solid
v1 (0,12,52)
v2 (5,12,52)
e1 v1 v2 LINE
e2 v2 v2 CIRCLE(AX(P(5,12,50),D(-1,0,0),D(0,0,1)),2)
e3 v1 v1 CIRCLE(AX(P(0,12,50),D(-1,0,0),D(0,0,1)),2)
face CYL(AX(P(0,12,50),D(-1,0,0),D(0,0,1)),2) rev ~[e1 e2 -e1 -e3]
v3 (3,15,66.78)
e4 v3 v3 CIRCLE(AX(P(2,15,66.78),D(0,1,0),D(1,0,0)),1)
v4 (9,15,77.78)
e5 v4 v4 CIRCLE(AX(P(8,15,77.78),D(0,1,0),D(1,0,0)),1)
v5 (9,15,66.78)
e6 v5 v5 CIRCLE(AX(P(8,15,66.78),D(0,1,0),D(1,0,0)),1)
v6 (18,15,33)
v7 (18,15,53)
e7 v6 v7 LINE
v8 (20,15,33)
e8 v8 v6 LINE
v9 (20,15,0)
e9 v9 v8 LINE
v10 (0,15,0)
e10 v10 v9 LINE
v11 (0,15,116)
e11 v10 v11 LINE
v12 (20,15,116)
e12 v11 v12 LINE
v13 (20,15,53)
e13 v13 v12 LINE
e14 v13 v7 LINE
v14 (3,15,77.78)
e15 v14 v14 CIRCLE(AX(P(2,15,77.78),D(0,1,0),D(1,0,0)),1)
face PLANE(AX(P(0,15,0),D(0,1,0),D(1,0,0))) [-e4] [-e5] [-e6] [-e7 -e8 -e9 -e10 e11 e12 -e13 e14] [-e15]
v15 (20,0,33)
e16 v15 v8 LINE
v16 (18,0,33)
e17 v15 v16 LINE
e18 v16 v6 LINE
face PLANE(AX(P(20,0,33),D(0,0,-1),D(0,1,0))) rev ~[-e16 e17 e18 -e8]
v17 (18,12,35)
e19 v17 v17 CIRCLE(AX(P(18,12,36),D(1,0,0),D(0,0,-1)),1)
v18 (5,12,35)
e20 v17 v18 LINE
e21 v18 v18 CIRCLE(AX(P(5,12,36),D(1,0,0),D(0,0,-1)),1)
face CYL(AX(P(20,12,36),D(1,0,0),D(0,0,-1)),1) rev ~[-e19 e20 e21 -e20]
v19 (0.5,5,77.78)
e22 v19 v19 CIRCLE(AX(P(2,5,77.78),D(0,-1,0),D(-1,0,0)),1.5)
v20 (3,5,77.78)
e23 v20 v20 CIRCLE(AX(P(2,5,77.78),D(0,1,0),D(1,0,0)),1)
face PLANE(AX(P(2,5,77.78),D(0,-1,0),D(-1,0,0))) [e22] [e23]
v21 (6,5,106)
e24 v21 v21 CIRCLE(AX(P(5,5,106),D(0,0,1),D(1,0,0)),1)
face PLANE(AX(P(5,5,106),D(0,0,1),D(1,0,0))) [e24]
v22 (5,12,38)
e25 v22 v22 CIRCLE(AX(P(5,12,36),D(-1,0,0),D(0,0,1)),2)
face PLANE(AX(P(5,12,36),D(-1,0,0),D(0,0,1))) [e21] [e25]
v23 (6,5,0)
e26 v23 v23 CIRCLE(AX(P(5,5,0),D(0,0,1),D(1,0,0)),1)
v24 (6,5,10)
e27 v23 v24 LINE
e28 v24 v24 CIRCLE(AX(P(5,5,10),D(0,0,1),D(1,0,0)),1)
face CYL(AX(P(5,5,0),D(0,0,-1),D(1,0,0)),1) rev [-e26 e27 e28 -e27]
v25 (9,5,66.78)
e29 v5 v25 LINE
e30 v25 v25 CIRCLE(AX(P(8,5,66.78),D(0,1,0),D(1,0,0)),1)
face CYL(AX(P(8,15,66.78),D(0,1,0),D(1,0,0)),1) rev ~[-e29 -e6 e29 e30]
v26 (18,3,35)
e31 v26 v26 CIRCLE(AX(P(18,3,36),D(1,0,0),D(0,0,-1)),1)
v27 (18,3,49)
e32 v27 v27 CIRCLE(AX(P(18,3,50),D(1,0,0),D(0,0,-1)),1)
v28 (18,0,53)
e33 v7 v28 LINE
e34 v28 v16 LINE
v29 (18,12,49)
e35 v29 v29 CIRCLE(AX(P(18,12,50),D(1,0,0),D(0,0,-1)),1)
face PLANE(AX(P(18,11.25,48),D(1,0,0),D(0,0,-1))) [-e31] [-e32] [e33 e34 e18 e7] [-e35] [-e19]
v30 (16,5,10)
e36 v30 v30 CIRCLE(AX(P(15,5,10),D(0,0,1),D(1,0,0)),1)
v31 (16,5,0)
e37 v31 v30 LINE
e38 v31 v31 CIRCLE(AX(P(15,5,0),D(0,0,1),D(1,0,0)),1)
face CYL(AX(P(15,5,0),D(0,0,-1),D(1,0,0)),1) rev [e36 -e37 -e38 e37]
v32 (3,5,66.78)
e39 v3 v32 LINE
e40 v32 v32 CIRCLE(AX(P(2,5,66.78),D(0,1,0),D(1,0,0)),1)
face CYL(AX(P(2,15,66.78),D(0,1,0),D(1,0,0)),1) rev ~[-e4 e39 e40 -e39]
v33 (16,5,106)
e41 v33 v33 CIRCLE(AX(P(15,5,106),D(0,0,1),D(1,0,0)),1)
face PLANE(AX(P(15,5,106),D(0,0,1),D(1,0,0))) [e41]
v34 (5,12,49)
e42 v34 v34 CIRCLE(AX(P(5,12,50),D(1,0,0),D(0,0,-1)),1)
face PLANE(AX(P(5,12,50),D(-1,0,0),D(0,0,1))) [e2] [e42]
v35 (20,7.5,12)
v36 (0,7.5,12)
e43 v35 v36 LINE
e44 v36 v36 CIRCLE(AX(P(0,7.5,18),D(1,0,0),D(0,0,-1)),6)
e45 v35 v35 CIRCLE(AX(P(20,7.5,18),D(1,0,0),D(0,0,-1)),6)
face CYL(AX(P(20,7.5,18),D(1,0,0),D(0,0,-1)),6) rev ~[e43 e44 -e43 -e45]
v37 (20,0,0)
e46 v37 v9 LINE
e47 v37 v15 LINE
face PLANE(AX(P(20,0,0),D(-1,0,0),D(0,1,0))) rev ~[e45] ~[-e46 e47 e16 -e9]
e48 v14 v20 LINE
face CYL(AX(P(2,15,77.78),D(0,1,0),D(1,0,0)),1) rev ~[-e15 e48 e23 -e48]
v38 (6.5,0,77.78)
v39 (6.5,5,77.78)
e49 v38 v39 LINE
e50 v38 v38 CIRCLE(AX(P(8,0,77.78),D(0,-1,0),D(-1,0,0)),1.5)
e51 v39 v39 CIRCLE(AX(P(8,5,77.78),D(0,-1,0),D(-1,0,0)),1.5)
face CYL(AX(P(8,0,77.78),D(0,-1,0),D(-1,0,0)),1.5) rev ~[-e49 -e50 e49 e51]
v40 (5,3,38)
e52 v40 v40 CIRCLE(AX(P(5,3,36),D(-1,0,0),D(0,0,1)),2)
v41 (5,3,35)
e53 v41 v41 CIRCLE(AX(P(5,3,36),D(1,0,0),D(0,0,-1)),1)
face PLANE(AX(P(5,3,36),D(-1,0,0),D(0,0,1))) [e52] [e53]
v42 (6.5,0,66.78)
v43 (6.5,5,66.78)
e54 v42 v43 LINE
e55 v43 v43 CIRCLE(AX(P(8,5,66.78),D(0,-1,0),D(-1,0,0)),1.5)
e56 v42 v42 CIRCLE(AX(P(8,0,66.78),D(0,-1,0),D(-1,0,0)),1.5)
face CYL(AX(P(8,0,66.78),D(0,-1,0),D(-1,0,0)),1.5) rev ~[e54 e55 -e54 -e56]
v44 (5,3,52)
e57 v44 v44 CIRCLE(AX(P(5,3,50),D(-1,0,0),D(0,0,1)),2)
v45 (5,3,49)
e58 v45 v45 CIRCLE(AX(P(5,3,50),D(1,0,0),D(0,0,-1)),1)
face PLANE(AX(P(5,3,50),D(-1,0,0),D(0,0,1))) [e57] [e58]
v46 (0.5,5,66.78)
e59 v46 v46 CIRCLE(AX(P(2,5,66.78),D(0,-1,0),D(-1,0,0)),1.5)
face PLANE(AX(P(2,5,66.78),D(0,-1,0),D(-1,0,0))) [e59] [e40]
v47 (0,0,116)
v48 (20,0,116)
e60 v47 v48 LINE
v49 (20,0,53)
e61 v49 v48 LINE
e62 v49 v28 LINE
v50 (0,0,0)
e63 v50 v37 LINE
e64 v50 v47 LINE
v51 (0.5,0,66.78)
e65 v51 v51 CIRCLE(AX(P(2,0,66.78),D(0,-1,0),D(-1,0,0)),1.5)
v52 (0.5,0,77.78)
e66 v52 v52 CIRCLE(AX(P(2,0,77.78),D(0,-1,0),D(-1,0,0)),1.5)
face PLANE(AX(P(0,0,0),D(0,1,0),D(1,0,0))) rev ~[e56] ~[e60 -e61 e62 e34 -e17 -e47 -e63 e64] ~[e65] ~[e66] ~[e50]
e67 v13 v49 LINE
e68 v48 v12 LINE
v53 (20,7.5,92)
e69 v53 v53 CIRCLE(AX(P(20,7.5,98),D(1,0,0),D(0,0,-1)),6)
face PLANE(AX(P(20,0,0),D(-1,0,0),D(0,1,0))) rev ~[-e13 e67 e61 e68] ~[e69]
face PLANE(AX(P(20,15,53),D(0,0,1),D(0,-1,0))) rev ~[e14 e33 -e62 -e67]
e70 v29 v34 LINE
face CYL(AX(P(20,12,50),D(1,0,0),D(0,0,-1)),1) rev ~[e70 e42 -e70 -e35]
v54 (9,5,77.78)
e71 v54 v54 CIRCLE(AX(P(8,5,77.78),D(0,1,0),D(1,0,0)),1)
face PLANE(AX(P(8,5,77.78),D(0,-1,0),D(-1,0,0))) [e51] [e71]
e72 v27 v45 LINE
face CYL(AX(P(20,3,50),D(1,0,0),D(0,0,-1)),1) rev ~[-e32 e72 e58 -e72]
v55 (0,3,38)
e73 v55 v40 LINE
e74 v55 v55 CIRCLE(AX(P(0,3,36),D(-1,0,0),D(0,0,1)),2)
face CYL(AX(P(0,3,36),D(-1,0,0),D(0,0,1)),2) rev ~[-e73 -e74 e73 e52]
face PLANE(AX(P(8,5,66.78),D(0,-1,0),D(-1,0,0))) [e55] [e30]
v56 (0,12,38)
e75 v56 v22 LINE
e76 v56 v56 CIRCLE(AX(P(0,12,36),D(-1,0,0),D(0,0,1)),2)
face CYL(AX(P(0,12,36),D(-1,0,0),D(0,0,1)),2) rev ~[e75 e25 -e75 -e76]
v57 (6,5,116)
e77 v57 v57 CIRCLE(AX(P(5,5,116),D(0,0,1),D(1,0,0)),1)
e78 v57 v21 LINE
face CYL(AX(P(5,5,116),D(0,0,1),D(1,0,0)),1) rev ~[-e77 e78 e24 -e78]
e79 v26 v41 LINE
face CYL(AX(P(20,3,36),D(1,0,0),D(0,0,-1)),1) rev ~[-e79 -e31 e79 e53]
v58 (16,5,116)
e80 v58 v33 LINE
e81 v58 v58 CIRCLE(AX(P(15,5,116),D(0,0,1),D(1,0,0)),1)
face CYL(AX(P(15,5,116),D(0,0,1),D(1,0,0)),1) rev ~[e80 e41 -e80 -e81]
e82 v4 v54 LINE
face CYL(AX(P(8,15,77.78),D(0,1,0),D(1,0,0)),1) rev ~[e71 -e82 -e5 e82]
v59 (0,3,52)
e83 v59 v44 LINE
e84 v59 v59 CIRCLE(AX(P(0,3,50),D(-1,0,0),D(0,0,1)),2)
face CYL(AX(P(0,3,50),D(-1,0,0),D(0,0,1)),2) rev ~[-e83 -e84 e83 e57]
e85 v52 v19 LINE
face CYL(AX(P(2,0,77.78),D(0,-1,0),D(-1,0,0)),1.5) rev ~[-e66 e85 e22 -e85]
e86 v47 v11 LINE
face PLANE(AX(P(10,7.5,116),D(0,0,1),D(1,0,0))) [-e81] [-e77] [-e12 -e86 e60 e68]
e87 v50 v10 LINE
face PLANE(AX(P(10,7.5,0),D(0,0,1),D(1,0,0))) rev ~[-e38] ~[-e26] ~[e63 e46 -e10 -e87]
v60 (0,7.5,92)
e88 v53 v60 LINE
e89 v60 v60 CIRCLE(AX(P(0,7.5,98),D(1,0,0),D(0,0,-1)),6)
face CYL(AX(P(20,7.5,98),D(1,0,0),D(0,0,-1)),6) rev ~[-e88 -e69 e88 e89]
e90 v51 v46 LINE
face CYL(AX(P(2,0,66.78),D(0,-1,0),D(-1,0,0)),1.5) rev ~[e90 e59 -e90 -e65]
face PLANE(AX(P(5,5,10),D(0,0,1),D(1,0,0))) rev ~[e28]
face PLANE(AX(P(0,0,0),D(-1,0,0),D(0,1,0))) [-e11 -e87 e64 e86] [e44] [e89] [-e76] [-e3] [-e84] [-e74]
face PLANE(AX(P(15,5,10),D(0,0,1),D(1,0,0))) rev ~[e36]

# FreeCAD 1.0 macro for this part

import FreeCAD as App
import Part
import Sketcher

V = App.Vector

doc = App.newDocument("Part")
params = doc.addObject("Spreadsheet::Sheet", "Params")
for row, (alias, value) in enumerate([
    ("sketch1_width", "20 mm"),
    ("sketch1_height", "15 mm"),
    ("pad1_length", "116 mm"),
    ("sketch2_diameter", "2 mm"),
    ("pocket1_length", "10 mm"),
    ("sketch3_diameter", "2 mm"),
    ("pocket2_length", "10 mm"),
    ("sketch4_diameter", "5 mm"),
    ("sketch5_diameter", "12 mm"),
    ("sketch6_diameter", "2 mm"),
    ("sketch7_diameter", "3 mm"),
    ("pocket6_length", "5 mm"),
    ("sketch8_diameter", "2 mm"),
    ("sketch9_diameter", "4 mm"),
    ("pocket8_length", "5 mm"),
    ("sketch10_diameter", "2 mm"),
    ("sketch10_width", "15 mm"),
    ("sketch10_height", "20 mm"),
    ("pocket9_length", "2 mm"),
], start=1):
    params.set(f"A{row}", alias)
    params.set(f"B{row}", "=" + value)
    params.setAlias(f"B{row}", alias)

body = doc.addObject("PartDesign::Body", "Body")

sketch1 = body.newObject("Sketcher::SketchObject", "Sketch")
sketch1.AttachmentSupport = (doc.getObject("XY_Plane"), [""])
sketch1.MapMode = "FlatFace"
sketch1.addGeometry([
    Part.LineSegment(V(0, 15, 0), V(0, 0, 0)),
    Part.LineSegment(V(0, 0, 0), V(20, 0, 0)),
    Part.LineSegment(V(20, 0, 0), V(20, 15, 0)),
    Part.LineSegment(V(20, 15, 0), V(0, 15, 0)),
], False)
sketch1.addConstraint([
    Sketcher.Constraint("Coincident", 0, 2, 1, 1),
    Sketcher.Constraint("Coincident", 1, 2, 2, 1),
    Sketcher.Constraint("Coincident", 2, 2, 3, 1),
    Sketcher.Constraint("Coincident", 3, 2, 0, 1),
    Sketcher.Constraint("Vertical", 0),
    Sketcher.Constraint("Horizontal", 1),
    Sketcher.Constraint("Vertical", 2),
    Sketcher.Constraint("Horizontal", 3),
    Sketcher.Constraint("Coincident", 0, 2, -1, 1),
    Sketcher.Constraint("DistanceX", 1, 1, 1, 2, 20.0),
    Sketcher.Constraint("DistanceY", 0, 2, 0, 1, 15.0),
])
sketch1.setExpression("Constraints[9]", "Params.sketch1_width")
sketch1.setExpression("Constraints[10]", "Params.sketch1_height")
pad1 = body.newObject("PartDesign::Pad", "Pad")
pad1.Profile = sketch1
pad1.setExpression("Length", "Params.pad1_length")

sketch2 = body.newObject("Sketcher::SketchObject", "Sketch001")
sketch2.AttachmentSupport = (doc.getObject("XY_Plane"), [""])
sketch2.MapMode = "FlatFace"
sketch2.addGeometry([
    Part.Circle(V(15, 5, 0), V(0, 0, 1), 1),
    Part.Circle(V(5, 5, 0), V(0, 0, 1), 1),
], False)
sketch2.addConstraint([
    Sketcher.Constraint("Equal", 0, 1),
    Sketcher.Constraint("Horizontal", 0, 3, 1, 3),
    Sketcher.Constraint("Diameter", 0, 2.0),
    Sketcher.Constraint("DistanceX", -1, 1, 0, 3, 15.0),
    Sketcher.Constraint("DistanceY", -1, 1, 0, 3, 5.0),
    Sketcher.Constraint("DistanceX", -1, 1, 1, 3, 5.0),
])
sketch2.setExpression("Constraints[2]", "Params.sketch2_diameter")
pocket1 = body.newObject("PartDesign::Pocket", "Pocket")
pocket1.Profile = sketch2
pocket1.setExpression("Length", "Params.pocket1_length")
pocket1.Reversed = True

sketch3 = body.newObject("Sketcher::SketchObject", "Sketch002")
sketch3.AttachmentSupport = (doc.getObject("XY_Plane"), [""])
sketch3.MapMode = "FlatFace"
sketch3.AttachmentOffset = App.Placement(V(0, 0, 116), App.Rotation())
sketch3.addGeometry([
    Part.Circle(V(5, 5, 0), V(0, 0, 1), 1),
    Part.Circle(V(15, 5, 0), V(0, 0, 1), 1),
], False)
sketch3.addConstraint([
    Sketcher.Constraint("Equal", 0, 1),
    Sketcher.Constraint("Horizontal", 0, 3, 1, 3),
    Sketcher.Constraint("Diameter", 0, 2.0),
    Sketcher.Constraint("DistanceX", -1, 1, 0, 3, 5.0),
    Sketcher.Constraint("DistanceY", -1, 1, 0, 3, 5.0),
    Sketcher.Constraint("DistanceX", -1, 1, 1, 3, 15.0),
])
sketch3.setExpression("Constraints[2]", "Params.sketch3_diameter")
pocket2 = body.newObject("PartDesign::Pocket", "Pocket001")
pocket2.Profile = sketch3
pocket2.setExpression("Length", "Params.pocket2_length")

sketch4 = body.newObject("Sketcher::SketchObject", "Sketch003")
sketch4.AttachmentSupport = (doc.getObject("YZ_Plane"), [""])
sketch4.MapMode = "FlatFace"
sketch4.AttachmentOffset = App.Placement(V(0, 0, 20), App.Rotation())
sketch4.addGeometry([
    Part.Circle(V(7.5, 98, 0), V(0, 0, 1), 2.5),
    Part.Circle(V(7.5, 18, 0), V(0, 0, 1), 2.5),
], False)
sketch4.addConstraint([
    Sketcher.Constraint("Equal", 0, 1),
    Sketcher.Constraint("Vertical", 0, 3, 1, 3),
    Sketcher.Constraint("Diameter", 0, 5.0),
    Sketcher.Constraint("DistanceY", -1, 1, 0, 3, 98.0),
    Sketcher.Constraint("DistanceY", -1, 1, 1, 3, 18.0),
    Sketcher.Constraint("DistanceX", -1, 1, 0, 3, 7.5),
])
sketch4.setExpression("Constraints[2]", "Params.sketch4_diameter")
pocket3 = body.newObject("PartDesign::Pocket", "Pocket002")
pocket3.Profile = sketch4
pocket3.Type = "ThroughAll"

sketch5 = body.newObject("Sketcher::SketchObject", "Sketch004")
sketch5.AttachmentSupport = (doc.getObject("YZ_Plane"), [""])
sketch5.MapMode = "FlatFace"
sketch5.AttachmentOffset = App.Placement(V(0, 0, 20), App.Rotation())
sketch5.addGeometry([
    Part.Circle(V(8, 98, 0), V(0, 0, 1), 6),
    Part.Circle(V(8, 18, 0), V(0, 0, 1), 6),
], False)
sketch5.addConstraint([
    Sketcher.Constraint("Equal", 0, 1),
    Sketcher.Constraint("Vertical", 0, 3, 1, 3),
    Sketcher.Constraint("Diameter", 0, 12.0),
    Sketcher.Constraint("DistanceY", -1, 1, 0, 3, 98.0),
    Sketcher.Constraint("DistanceY", -1, 1, 1, 3, 18.0),
    Sketcher.Constraint("DistanceX", -1, 1, 0, 3, 7.5),
])
sketch5.setExpression("Constraints[2]", "Params.sketch5_diameter")
pocket4 = body.newObject("PartDesign::Pocket", "Pocket003")
pocket4.Profile = sketch5
pocket4.Type = "ThroughAll"

sketch6 = body.newObject("Sketcher::SketchObject", "Sketch005")
sketch6.AttachmentSupport = (doc.getObject("XZ_Plane"), [""])
sketch6.MapMode = "FlatFace"
sketch6.AttachmentOffset = App.Placement(V(0, 0, -15), App.Rotation())
sketch6.addGeometry([
    Part.Circle(V(8, 77.8, 0), V(0, 0, 1), 1),
    Part.Circle(V(2, 66.8, 0), V(0, 0, 1), 1),
    Part.Circle(V(8, 66.8, 0), V(0, 0, 1), 1),
    Part.Circle(V(2, 77.8, 0), V(0, 0, 1), 1),
], False)
sketch6.addConstraint([
    Sketcher.Constraint("Equal", 0, 1),
    Sketcher.Constraint("Equal", 1, 2),
    Sketcher.Constraint("Equal", 2, 3),
    Sketcher.Constraint("Horizontal", 1, 3, 2, 3),
    Sketcher.Constraint("Horizontal", 0, 3, 3, 3),
    Sketcher.Constraint("Vertical", 0, 3, 2, 3),
    Sketcher.Constraint("Vertical", 1, 3, 3, 3),
    Sketcher.Constraint("Diameter", 0, 2.0),
    Sketcher.Constraint("DistanceX", -1, 1, 0, 3, 8.0),
    Sketcher.Constraint("DistanceX", -1, 1, 1, 3, 2.0),
    Sketcher.Constraint("DistanceY", 1, 3, 0, 3, 11.0),
    Sketcher.Constraint("DistanceY", -1, 1, 0, 3, 77.78),
])
sketch6.setExpression("Constraints[7]", "Params.sketch6_diameter")
pocket5 = body.newObject("PartDesign::Pocket", "Pocket004")
pocket5.Profile = sketch6
pocket5.Type = "ThroughAll"
pocket5.Reversed = True

sketch7 = body.newObject("Sketcher::SketchObject", "Sketch006")
sketch7.AttachmentSupport = (doc.getObject("XZ_Plane"), [""])
sketch7.MapMode = "FlatFace"
sketch7.addGeometry([
    Part.Circle(V(2, 77.8, 0), V(0, 0, 1), 1.5),
    Part.Circle(V(8, 77.8, 0), V(0, 0, 1), 1.5),
    Part.Circle(V(8, 66.8, 0), V(0, 0, 1), 1.5),
    Part.Circle(V(2, 66.8, 0), V(0, 0, 1), 1.5),
], False)
sketch7.addConstraint([
    Sketcher.Constraint("Equal", 0, 1),
    Sketcher.Constraint("Equal", 1, 2),
    Sketcher.Constraint("Equal", 2, 3),
    Sketcher.Constraint("Horizontal", 0, 3, 1, 3),
    Sketcher.Constraint("Horizontal", 2, 3, 3, 3),
    Sketcher.Constraint("Vertical", 1, 3, 2, 3),
    Sketcher.Constraint("Vertical", 0, 3, 3, 3),
    Sketcher.Constraint("Diameter", 0, 3.0),
    Sketcher.Constraint("DistanceX", -1, 1, 0, 3, 2.0),
    Sketcher.Constraint("DistanceX", -1, 1, 1, 3, 8.0),
    Sketcher.Constraint("DistanceY", 2, 3, 1, 3, 11.0),
    Sketcher.Constraint("DistanceY", -1, 1, 0, 3, 77.78),
])
sketch7.setExpression("Constraints[7]", "Params.sketch7_diameter")
pocket6 = body.newObject("PartDesign::Pocket", "Pocket005")
pocket6.Profile = sketch7
pocket6.setExpression("Length", "Params.pocket6_length")

sketch8 = body.newObject("Sketcher::SketchObject", "Sketch007")
sketch8.AttachmentSupport = (doc.getObject("YZ_Plane"), [""])
sketch8.MapMode = "FlatFace"
sketch8.AttachmentOffset = App.Placement(V(0, 0, 20), App.Rotation())
sketch8.addGeometry([
    Part.Circle(V(12, 50, 0), V(0, 0, 1), 1),
    Part.Circle(V(12, 36, 0), V(0, 0, 1), 1),
    Part.Circle(V(3, 36, 0), V(0, 0, 1), 1),
    Part.Circle(V(3, 50, 0), V(0, 0, 1), 1),
], False)
sketch8.addConstraint([
    Sketcher.Constraint("Equal", 0, 1),
    Sketcher.Constraint("Equal", 1, 2),
    Sketcher.Constraint("Equal", 2, 3),
    Sketcher.Constraint("Horizontal", 1, 3, 2, 3),
    Sketcher.Constraint("Horizontal", 0, 3, 3, 3),
    Sketcher.Constraint("Vertical", 0, 3, 1, 3),
    Sketcher.Constraint("Vertical", 2, 3, 3, 3),
    Sketcher.Constraint("Diameter", 0, 2.0),
    Sketcher.Constraint("DistanceX", -1, 1, 0, 3, 12.0),
    Sketcher.Constraint("DistanceY", -1, 1, 0, 3, 50.0),
    Sketcher.Constraint("DistanceY", -1, 1, 1, 3, 36.0),
    Sketcher.Constraint("DistanceX", -1, 1, 2, 3, 3.0),
])
sketch8.setExpression("Constraints[7]", "Params.sketch8_diameter")
pocket7 = body.newObject("PartDesign::Pocket", "Pocket006")
pocket7.Profile = sketch8
pocket7.Type = "ThroughAll"

sketch9 = body.newObject("Sketcher::SketchObject", "Sketch008")
sketch9.AttachmentSupport = (doc.getObject("YZ_Plane"), [""])
sketch9.MapMode = "FlatFace"
sketch9.addGeometry([
    Part.Circle(V(12, 36, 0), V(0, 0, 1), 2),
    Part.Circle(V(3, 36, 0), V(0, 0, 1), 2),
    Part.Circle(V(3, 50, 0), V(0, 0, 1), 2),
    Part.Circle(V(12, 50, 0), V(0, 0, 1), 2),
], False)
sketch9.addConstraint([
    Sketcher.Constraint("Equal", 0, 1),
    Sketcher.Constraint("Equal", 1, 2),
    Sketcher.Constraint("Equal", 2, 3),
    Sketcher.Constraint("Horizontal", 0, 3, 1, 3),
    Sketcher.Constraint("Horizontal", 2, 3, 3, 3),
    Sketcher.Constraint("Vertical", 1, 3, 2, 3),
    Sketcher.Constraint("Vertical", 0, 3, 3, 3),
    Sketcher.Constraint("Diameter", 0, 4.0),
    Sketcher.Constraint("DistanceX", -1, 1, 0, 3, 12.0),
    Sketcher.Constraint("DistanceY", -1, 1, 0, 3, 36.0),
    Sketcher.Constraint("DistanceX", -1, 1, 1, 3, 3.0),
    Sketcher.Constraint("DistanceY", -1, 1, 2, 3, 50.0),
])
sketch9.setExpression("Constraints[7]", "Params.sketch9_diameter")
pocket8 = body.newObject("PartDesign::Pocket", "Pocket007")
pocket8.Profile = sketch9
pocket8.setExpression("Length", "Params.pocket8_length")
pocket8.Reversed = True

sketch10 = body.newObject("Sketcher::SketchObject", "Sketch009")
sketch10.AttachmentSupport = (doc.getObject("YZ_Plane"), [""])
sketch10.MapMode = "FlatFace"
sketch10.AttachmentOffset = App.Placement(V(0, 0, 20), App.Rotation())
sketch10.addGeometry([
    Part.LineSegment(V(15, 53, 0), V(0, 53, 0)),
    Part.LineSegment(V(0, 53, 0), V(0, 33, 0)),
    Part.LineSegment(V(0, 33, 0), V(15, 33, 0)),
    Part.LineSegment(V(15, 33, 0), V(15, 53, 0)),
    Part.Circle(V(3, 50, 0), V(0, 0, 1), 1),
    Part.Circle(V(3, 36, 0), V(0, 0, 1), 1),
    Part.Circle(V(12, 50, 0), V(0, 0, 1), 1),
    Part.Circle(V(12, 36, 0), V(0, 0, 1), 1),
], False)
sketch10.addConstraint([
    Sketcher.Constraint("Coincident", 0, 2, 1, 1),
    Sketcher.Constraint("Coincident", 1, 2, 2, 1),
    Sketcher.Constraint("Coincident", 2, 2, 3, 1),
    Sketcher.Constraint("Coincident", 3, 2, 0, 1),
    Sketcher.Constraint("Horizontal", 0),
    Sketcher.Constraint("Vertical", 1),
    Sketcher.Constraint("Horizontal", 2),
    Sketcher.Constraint("Vertical", 3),
    Sketcher.Constraint("Equal", 4, 5),
    Sketcher.Constraint("Equal", 5, 6),
    Sketcher.Constraint("Equal", 6, 7),
    Sketcher.Constraint("PointOnObject", 0, 2, -2),
    Sketcher.Constraint("Horizontal", 4, 3, 6, 3),
    Sketcher.Constraint("Horizontal", 5, 3, 7, 3),
    Sketcher.Constraint("Vertical", 4, 3, 5, 3),
    Sketcher.Constraint("Vertical", 6, 3, 7, 3),
    Sketcher.Constraint("Diameter", 4, 2.0),
    Sketcher.Constraint("DistanceX", 0, 2, 0, 1, 15.0),
    Sketcher.Constraint("DistanceY", 1, 2, 1, 1, 20.0),
    Sketcher.Constraint("DistanceX", -1, 1, 4, 3, 3.0),
    Sketcher.Constraint("DistanceY", -1, 1, 4, 3, 50.0),
    Sketcher.Constraint("DistanceY", -1, 1, 5, 3, 36.0),
    Sketcher.Constraint("DistanceX", -1, 1, 6, 3, 12.0),
    Sketcher.Constraint("DistanceY", -1, 1, 0, 2, 53.0),
])
sketch10.setExpression("Constraints[16]", "Params.sketch10_diameter")
sketch10.setExpression("Constraints[17]", "Params.sketch10_width")
sketch10.setExpression("Constraints[18]", "Params.sketch10_height")
pocket9 = body.newObject("PartDesign::Pocket", "Pocket008")
pocket9.Profile = sketch10
pocket9.setExpression("Length", "Params.pocket9_length")

doc.recompute()
